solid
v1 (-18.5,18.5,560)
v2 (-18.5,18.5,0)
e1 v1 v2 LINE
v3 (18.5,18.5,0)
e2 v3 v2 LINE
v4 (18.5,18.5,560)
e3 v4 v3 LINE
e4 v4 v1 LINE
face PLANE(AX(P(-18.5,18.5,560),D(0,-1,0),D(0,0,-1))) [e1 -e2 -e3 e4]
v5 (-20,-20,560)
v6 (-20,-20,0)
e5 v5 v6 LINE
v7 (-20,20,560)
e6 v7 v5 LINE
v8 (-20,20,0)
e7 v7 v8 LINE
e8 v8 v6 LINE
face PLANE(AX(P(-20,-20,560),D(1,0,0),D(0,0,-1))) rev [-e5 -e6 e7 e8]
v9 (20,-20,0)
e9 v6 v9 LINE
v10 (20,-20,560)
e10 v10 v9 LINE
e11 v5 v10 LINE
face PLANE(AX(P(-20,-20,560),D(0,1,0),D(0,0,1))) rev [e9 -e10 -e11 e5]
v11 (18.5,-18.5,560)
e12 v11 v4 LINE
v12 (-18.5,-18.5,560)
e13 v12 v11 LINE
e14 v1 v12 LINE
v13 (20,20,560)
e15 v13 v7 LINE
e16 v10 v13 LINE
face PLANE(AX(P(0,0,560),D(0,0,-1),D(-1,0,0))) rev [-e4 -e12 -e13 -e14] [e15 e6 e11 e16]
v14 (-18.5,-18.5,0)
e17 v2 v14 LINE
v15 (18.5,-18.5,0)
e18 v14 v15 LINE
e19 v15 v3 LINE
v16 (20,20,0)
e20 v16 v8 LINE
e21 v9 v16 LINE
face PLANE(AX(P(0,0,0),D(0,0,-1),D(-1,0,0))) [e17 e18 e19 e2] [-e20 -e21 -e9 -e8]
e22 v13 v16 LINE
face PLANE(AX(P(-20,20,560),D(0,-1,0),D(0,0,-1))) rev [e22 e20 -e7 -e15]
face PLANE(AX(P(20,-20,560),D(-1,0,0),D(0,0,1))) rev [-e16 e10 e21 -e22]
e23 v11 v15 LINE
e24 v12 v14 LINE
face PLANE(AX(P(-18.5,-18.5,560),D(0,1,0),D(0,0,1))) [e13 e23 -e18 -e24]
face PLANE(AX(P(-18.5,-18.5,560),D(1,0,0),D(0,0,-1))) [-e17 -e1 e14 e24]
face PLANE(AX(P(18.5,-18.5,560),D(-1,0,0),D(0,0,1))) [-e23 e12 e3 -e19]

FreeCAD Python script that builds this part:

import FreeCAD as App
import Part
import Sketcher
from FreeCAD import Vector
Q = App.Units.Quantity


def add_polygon(sketch, points):
    """Adds a closed chain of lines whose ends are joined by coincident constraints."""
    first, n = sketch.GeometryCount, len(points)
    for a, b in zip(points, points[1:] + points[:1]):
        sketch.addGeometry(Part.LineSegment(App.Vector(*a, 0), App.Vector(*b, 0)), False)
    for i in range(n):
        sketch.addConstraint(Sketcher.Constraint("Coincident", first + i, 2, first + (i + 1) % n, 1))

doc = App.newDocument("Part")
body = doc.addObject("PartDesign::Body", "Body")

# Sketch on XY plane
sketch1 = body.newObject("Sketcher::SketchObject", "Sketch")
sketch1.AttachmentSupport = (doc.getObject("XY_Plane"), [""])
sketch1.MapMode = "FlatFace"
add_polygon(sketch1, [(-20, 20), (-20, -20), (20, -20), (20, 20)])  # lines 0-3
add_polygon(sketch1, [(18, -18), (-18, -18), (-18, 18), (18, 18)])  # lines 4-7
sketch1.addConstraint(Sketcher.Constraint("Vertical", 0))
sketch1.addConstraint(Sketcher.Constraint("Horizontal", 1))
sketch1.addConstraint(Sketcher.Constraint("Vertical", 2))
sketch1.addConstraint(Sketcher.Constraint("Horizontal", 3))
sketch1.addConstraint(Sketcher.Constraint("Horizontal", 4))
sketch1.addConstraint(Sketcher.Constraint("Vertical", 5))
sketch1.addConstraint(Sketcher.Constraint("Horizontal", 6))
sketch1.addConstraint(Sketcher.Constraint("Vertical", 7))
sketch1.addConstraint(Sketcher.Constraint("Symmetric", 0, 2, 2, 2, -1, 1))
sketch1.addConstraint(Sketcher.Constraint("Symmetric", 4, 2, 6, 2, -1, 1))
sketch1.addConstraint(Sketcher.Constraint("Equal", 3, 0))
sketch1.addConstraint(Sketcher.Constraint("Equal", 6, 5))
sketch1.addConstraint(Sketcher.Constraint("DistanceX", 1, 1, 1, 2, Q("40 mm")))
sketch1.addConstraint(Sketcher.Constraint("DistanceX", 4, 2, 4, 1, Q("37 mm")))
pad1 = body.newObject("PartDesign::Pad", "Pad")
pad1.Profile = sketch1
pad1.Length = 560

doc.recompute()
